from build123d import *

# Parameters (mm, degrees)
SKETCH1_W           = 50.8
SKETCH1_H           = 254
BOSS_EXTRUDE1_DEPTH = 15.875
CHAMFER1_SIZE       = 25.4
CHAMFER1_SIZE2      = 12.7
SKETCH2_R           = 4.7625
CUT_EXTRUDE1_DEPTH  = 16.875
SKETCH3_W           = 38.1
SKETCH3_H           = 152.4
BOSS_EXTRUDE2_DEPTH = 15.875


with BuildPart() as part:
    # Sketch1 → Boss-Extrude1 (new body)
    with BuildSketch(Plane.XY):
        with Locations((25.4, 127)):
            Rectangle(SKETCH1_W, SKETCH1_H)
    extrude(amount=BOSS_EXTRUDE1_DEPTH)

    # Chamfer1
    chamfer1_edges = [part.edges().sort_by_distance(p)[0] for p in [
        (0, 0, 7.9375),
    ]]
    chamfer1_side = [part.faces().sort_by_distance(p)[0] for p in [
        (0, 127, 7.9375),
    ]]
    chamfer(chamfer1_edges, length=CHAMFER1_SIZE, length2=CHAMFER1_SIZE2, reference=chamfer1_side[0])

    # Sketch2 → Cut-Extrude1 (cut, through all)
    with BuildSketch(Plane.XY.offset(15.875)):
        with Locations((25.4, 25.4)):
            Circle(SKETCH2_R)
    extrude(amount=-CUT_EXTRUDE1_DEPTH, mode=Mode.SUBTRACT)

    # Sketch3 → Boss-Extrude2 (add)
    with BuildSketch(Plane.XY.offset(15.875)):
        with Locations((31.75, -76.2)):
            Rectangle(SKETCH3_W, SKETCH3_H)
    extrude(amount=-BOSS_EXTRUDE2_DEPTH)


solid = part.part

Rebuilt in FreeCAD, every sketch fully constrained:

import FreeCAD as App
import Part
import Sketcher
from FreeCAD import Vector
Q = App.Units.Quantity


def edges_at(feature, points):
    """Names of the edges that pass closest to the given points."""
    edges = feature.Shape.Edges
    near = lambda p: min(range(len(edges)), key=lambda i: edges[i].distToShape(Part.Vertex(*p))[0])
    return sorted({f"Edge{near(p) + 1}" for p in points})


def add_polygon(sketch, points):
    """Adds a closed chain of lines whose ends are joined by coincident constraints."""
    first, n = sketch.GeometryCount, len(points)
    for a, b in zip(points, points[1:] + points[:1]):
        sketch.addGeometry(Part.LineSegment(App.Vector(*a, 0), App.Vector(*b, 0)), False)
    for i in range(n):
        sketch.addConstraint(Sketcher.Constraint("Coincident", first + i, 2, first + (i + 1) % n, 1))

doc = App.newDocument("Part")
body = doc.addObject("PartDesign::Body", "Body")

# Sketch on XY plane
sketch1 = body.newObject("Sketcher::SketchObject", "Sketch")
sketch1.AttachmentSupport = (doc.getObject("XY_Plane"), [""])
sketch1.MapMode = "FlatFace"
add_polygon(sketch1, [(0, 254), (0, 0), (50.8, 0), (50.8, 254)])  # lines 0-3
sketch1.addConstraint(Sketcher.Constraint("Vertical", 0))
sketch1.addConstraint(Sketcher.Constraint("Horizontal", 1))
sketch1.addConstraint(Sketcher.Constraint("Vertical", 2))
sketch1.addConstraint(Sketcher.Constraint("Horizontal", 3))
sketch1.addConstraint(Sketcher.Constraint("Coincident", 0, 2, -1, 1))
sketch1.addConstraint(Sketcher.Constraint("DistanceX", 1, 1, 1, 2, Q("2 in")))
sketch1.addConstraint(Sketcher.Constraint("DistanceY", 0, 2, 0, 1, Q("10 in")))
pad1 = body.newObject("PartDesign::Pad", "Pad")
pad1.Profile = sketch1
pad1.Length = Q("0.625 in")
doc.recompute()

chamfer = body.newObject("PartDesign::Chamfer", "Chamfer")
chamfer.Base = (pad1, edges_at(pad1, [(0, 0, 7.938)]))
chamfer.ChamferType = "Two distances"
chamfer.Size = Q("1 in")
chamfer.Size2 = Q("0.5 in")

# Sketch on XY plane
sketch2 = body.newObject("Sketcher::SketchObject", "Sketch001")
sketch2.AttachmentSupport = (doc.getObject("XY_Plane"), [""])
sketch2.MapMode = "FlatFace"
sketch2.AttachmentOffset = App.Placement(Vector(0, 0, 0.625 * 25.4), App.Rotation())
sketch2.addGeometry(Part.Circle(Vector(25.4, 25.4, 0), Vector(0, 0, 1), 4.7625), False)
sketch2.addConstraint(Sketcher.Constraint("Diameter", 0, Q("0.375 in")))
sketch2.addConstraint(Sketcher.Constraint("DistanceX", -1, 1, 0, 3, Q("1 in")))
sketch2.addConstraint(Sketcher.Constraint("DistanceY", -1, 1, 0, 3, Q("1 in")))
pocket1 = body.newObject("PartDesign::Pocket", "Pocket")
pocket1.Profile = sketch2
pocket1.Type = "ThroughAll"

# Sketch on XY plane
sketch3 = body.newObject("Sketcher::SketchObject", "Sketch002")
sketch3.AttachmentSupport = (doc.getObject("XY_Plane"), [""])
sketch3.MapMode = "FlatFace"
sketch3.AttachmentOffset = App.Placement(Vector(0, 0, 0.625 * 25.4), App.Rotation())
add_polygon(sketch3, [(12.7, 0), (12.7, -152.4), (50.8, -152.4), (50.8, 0)])  # lines 0-3
sketch3.addConstraint(Sketcher.Constraint("Vertical", 0))
sketch3.addConstraint(Sketcher.Constraint("Horizontal", 1))
sketch3.addConstraint(Sketcher.Constraint("Vertical", 2))
sketch3.addConstraint(Sketcher.Constraint("Horizontal", 3))
sketch3.addConstraint(Sketcher.Constraint("PointOnObject", 2, 2, -1))
sketch3.addConstraint(Sketcher.Constraint("DistanceY", 0, 2, 0, 1, Q("6 in")))
sketch3.addConstraint(Sketcher.Constraint("DistanceX", 1, 1, 1, 2, Q("1.5 in")))
sketch3.addConstraint(Sketcher.Constraint("DistanceX", -1, 1, 1, 2, Q("2 in")))
pad2 = body.newObject("PartDesign::Pad", "Pad001")
pad2.Profile = sketch3
pad2.Length = Q("0.625 in")
pad2.Reversed = True

doc.recompute()
